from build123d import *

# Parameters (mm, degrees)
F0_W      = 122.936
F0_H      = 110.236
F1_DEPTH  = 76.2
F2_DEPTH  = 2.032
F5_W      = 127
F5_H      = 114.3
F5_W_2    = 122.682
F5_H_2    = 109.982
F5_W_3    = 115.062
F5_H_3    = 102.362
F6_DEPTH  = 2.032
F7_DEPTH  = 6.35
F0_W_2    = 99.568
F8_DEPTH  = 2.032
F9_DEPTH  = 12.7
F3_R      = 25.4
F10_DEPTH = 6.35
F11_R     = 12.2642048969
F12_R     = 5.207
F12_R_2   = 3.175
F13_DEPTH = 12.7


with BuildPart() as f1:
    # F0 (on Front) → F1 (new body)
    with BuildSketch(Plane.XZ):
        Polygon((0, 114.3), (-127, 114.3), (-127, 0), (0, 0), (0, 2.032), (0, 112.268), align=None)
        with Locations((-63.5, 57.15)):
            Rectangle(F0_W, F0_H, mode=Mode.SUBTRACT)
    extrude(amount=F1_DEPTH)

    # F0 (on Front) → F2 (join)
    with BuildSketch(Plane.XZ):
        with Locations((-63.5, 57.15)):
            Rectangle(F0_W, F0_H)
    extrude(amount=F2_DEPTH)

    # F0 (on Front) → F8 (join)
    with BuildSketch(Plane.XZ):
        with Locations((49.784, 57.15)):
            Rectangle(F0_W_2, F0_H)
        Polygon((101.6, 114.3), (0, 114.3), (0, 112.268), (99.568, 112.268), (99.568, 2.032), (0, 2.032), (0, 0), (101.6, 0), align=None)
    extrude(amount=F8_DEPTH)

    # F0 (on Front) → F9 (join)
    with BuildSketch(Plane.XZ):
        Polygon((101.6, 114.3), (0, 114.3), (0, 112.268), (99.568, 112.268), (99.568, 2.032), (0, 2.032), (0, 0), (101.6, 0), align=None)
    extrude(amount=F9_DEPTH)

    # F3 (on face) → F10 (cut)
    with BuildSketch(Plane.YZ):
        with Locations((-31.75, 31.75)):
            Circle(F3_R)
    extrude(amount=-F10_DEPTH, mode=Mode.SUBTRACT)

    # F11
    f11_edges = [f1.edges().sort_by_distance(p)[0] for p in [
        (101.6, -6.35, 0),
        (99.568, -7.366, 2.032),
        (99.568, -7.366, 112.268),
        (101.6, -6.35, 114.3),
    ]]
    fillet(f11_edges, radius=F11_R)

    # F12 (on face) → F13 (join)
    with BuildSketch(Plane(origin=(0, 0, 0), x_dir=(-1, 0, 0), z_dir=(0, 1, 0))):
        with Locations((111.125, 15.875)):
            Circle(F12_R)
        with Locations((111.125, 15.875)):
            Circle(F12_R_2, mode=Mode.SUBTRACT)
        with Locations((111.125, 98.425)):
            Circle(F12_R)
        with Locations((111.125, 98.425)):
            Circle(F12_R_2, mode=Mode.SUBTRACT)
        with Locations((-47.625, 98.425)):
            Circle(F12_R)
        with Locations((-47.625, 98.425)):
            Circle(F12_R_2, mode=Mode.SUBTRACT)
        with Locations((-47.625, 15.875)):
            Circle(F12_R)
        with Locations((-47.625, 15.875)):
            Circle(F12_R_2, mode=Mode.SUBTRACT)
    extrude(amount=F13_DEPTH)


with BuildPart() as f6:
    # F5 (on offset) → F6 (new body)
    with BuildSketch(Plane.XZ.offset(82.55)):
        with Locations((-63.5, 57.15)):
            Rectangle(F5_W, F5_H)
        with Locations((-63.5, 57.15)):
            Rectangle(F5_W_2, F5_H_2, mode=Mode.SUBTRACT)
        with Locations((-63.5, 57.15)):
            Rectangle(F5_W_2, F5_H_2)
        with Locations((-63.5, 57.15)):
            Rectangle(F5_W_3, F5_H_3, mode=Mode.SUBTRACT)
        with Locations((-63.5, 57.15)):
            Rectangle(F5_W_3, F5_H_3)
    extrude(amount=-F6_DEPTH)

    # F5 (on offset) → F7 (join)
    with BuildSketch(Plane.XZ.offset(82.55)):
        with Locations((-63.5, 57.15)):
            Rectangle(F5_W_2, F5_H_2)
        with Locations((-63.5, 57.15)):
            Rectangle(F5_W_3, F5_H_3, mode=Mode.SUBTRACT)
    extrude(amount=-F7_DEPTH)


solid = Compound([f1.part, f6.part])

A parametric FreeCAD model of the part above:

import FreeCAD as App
import Part
import Sketcher
from FreeCAD import Vector
Q = App.Units.Quantity


def edges_at(feature, points):
    """Names of the edges that pass closest to the given points."""
    edges = feature.Shape.Edges
    near = lambda p: min(range(len(edges)), key=lambda i: edges[i].distToShape(Part.Vertex(*p))[0])
    return sorted({f"Edge{near(p) + 1}" for p in points})


def add_polygon(sketch, points):
    """Adds a closed chain of lines whose ends are joined by coincident constraints."""
    first, n = sketch.GeometryCount, len(points)
    for a, b in zip(points, points[1:] + points[:1]):
        sketch.addGeometry(Part.LineSegment(App.Vector(*a, 0), App.Vector(*b, 0)), False)
    for i in range(n):
        sketch.addConstraint(Sketcher.Constraint("Coincident", first + i, 2, first + (i + 1) % n, 1))

doc = App.newDocument("Part")
body = doc.addObject("PartDesign::Body", "Body")

sketch1 = body.newObject("Sketcher::SketchObject", "Sketch")
sketch1.AttachmentSupport = (doc.getObject("XZ_Plane"), [""])
sketch1.MapMode = "FlatFace"
add_polygon(sketch1, [(0, 114.3), (-127, 114.3), (-127, 0), (0, 0)])
add_polygon(sketch1, [(-2.032, 2.032), (-124.968, 2.032), (-124.968, 112.268), (-2.032, 112.268)])
sketch1.addConstraint(Sketcher.Constraint("Horizontal", 0))
sketch1.addConstraint(Sketcher.Constraint("Vertical", 1))
sketch1.addConstraint(Sketcher.Constraint("Horizontal", 2))
sketch1.addConstraint(Sketcher.Constraint("Vertical", 3))
sketch1.addConstraint(Sketcher.Constraint("Horizontal", 4))
sketch1.addConstraint(Sketcher.Constraint("Vertical", 5))
sketch1.addConstraint(Sketcher.Constraint("Horizontal", 6))
sketch1.addConstraint(Sketcher.Constraint("Vertical", 7))
sketch1.addConstraint(Sketcher.Constraint("Coincident", 2, 2, -1, 1))
sketch1.addConstraint(Sketcher.Constraint("DistanceX", 0, 2, 0, 1, Q("5 in")))
sketch1.addConstraint(Sketcher.Constraint("DistanceY", 1, 2, 1, 1, Q("4.5 in")))
sketch1.addConstraint(Sketcher.Constraint("DistanceX", 4, 2, 4, 1, Q("4.84 in")))
sketch1.addConstraint(Sketcher.Constraint("DistanceY", 5, 1, 5, 2, Q("4.34 in")))
sketch1.addConstraint(Sketcher.Constraint("DistanceX", 4, 2, -1, 1, Q("4.92 in")))
sketch1.addConstraint(Sketcher.Constraint("DistanceY", -1, 1, 4, 2, Q("0.08 in")))
pad1 = body.newObject("PartDesign::Pad", "Pad")
pad1.Profile = sketch1
pad1.Length = Q("3 in")

sketch2 = body.newObject("Sketcher::SketchObject", "Sketch001")
sketch2.AttachmentSupport = (doc.getObject("XZ_Plane"), [""])
sketch2.MapMode = "FlatFace"
add_polygon(sketch2, [(-124.968, 112.268), (-124.968, 2.032), (-2.032, 2.032), (-2.032, 112.268)])
sketch2.addConstraint(Sketcher.Constraint("Vertical", 0))
sketch2.addConstraint(Sketcher.Constraint("Horizontal", 1))
sketch2.addConstraint(Sketcher.Constraint("Vertical", 2))
sketch2.addConstraint(Sketcher.Constraint("Horizontal", 3))
sketch2.addConstraint(Sketcher.Constraint("DistanceX", 1, 1, 1, 2, Q("4.84 in")))
sketch2.addConstraint(Sketcher.Constraint("DistanceY", 0, 2, 0, 1, Q("4.34 in")))
sketch2.addConstraint(Sketcher.Constraint("DistanceX", 0, 2, -1, 1, Q("4.92 in")))
sketch2.addConstraint(Sketcher.Constraint("DistanceY", -1, 1, 0, 2, Q("0.08 in")))
pad2 = body.newObject("PartDesign::Pad", "Pad001")
pad2.Profile = sketch2
pad2.Length = Q("0.08 in")

sketch3 = body.newObject("Sketcher::SketchObject", "Sketch002")
sketch3.AttachmentSupport = (doc.getObject("XZ_Plane"), [""])
sketch3.MapMode = "FlatFace"
add_polygon(sketch3, [(0, 0), (101.6, 0), (101.6, 114.3), (0, 114.3)])
sketch3.addConstraint(Sketcher.Constraint("Horizontal", 0))
sketch3.addConstraint(Sketcher.Constraint("Vertical", 1))
sketch3.addConstraint(Sketcher.Constraint("Horizontal", 2))
sketch3.addConstraint(Sketcher.Constraint("Vertical", 3))
sketch3.addConstraint(Sketcher.Constraint("Coincident", 3, 2, -1, 1))
sketch3.addConstraint(Sketcher.Constraint("DistanceX", 0, 1, 0, 2, Q("4 in")))
sketch3.addConstraint(Sketcher.Constraint("DistanceY", 1, 1, 1, 2, Q("4.5 in")))
pad3 = body.newObject("PartDesign::Pad", "Pad002")
pad3.Profile = sketch3
pad3.Length = Q("0.08 in")

sketch4 = body.newObject("Sketcher::SketchObject", "Sketch003")
sketch4.AttachmentSupport = (doc.getObject("XZ_Plane"), [""])
sketch4.MapMode = "FlatFace"
add_polygon(sketch4, [(101.6, 114.3), (0, 114.3), (0, 112.268), (99.568, 112.268), (99.568, 2.032), (0, 2.032), (0, 0), (101.6, 0)])
sketch4.addConstraint(Sketcher.Constraint("Horizontal", 0))
sketch4.addConstraint(Sketcher.Constraint("Vertical", 1))
sketch4.addConstraint(Sketcher.Constraint("Horizontal", 2))
sketch4.addConstraint(Sketcher.Constraint("Vertical", 3))
sketch4.addConstraint(Sketcher.Constraint("Horizontal", 4))
sketch4.addConstraint(Sketcher.Constraint("Vertical", 5))
sketch4.addConstraint(Sketcher.Constraint("Horizontal", 6))
sketch4.addConstraint(Sketcher.Constraint("Vertical", 7))
sketch4.addConstraint(Sketcher.Constraint("Coincident", 5, 2, -1, 1))
sketch4.addConstraint(Sketcher.Constraint("PointOnObject", 0, 2, -2))
sketch4.addConstraint(Sketcher.Constraint("Equal", 1, 5))
sketch4.addConstraint(Sketcher.Constraint("DistanceX", 0, 2, 0, 1, Q("4 in")))
sketch4.addConstraint(Sketcher.Constraint("DistanceY", 7, 1, 7, 2, Q("4.5 in")))
sketch4.addConstraint(Sketcher.Constraint("DistanceX", 2, 1, 2, 2, Q("3.92 in")))
sketch4.addConstraint(Sketcher.Constraint("DistanceY", 1, 2, 1, 1, Q("0.08 in")))
pad4 = body.newObject("PartDesign::Pad", "Pad003")
pad4.Profile = sketch4
pad4.Length = Q("0.5 in")

sketch5 = body.newObject("Sketcher::SketchObject", "Sketch004")
sketch5.AttachmentSupport = (doc.getObject("YZ_Plane"), [""])
sketch5.MapMode = "FlatFace"
sketch5.addGeometry(Part.Circle(Vector(-31.75, 31.75, 0), Vector(0, 0, 1), 25.4), False)
sketch5.addConstraint(Sketcher.Constraint("Diameter", 0, Q("2 in")))
sketch5.addConstraint(Sketcher.Constraint("DistanceX", 0, 3, -1, 1, Q("1.25 in")))
sketch5.addConstraint(Sketcher.Constraint("DistanceY", -1, 1, 0, 3, Q("1.25 in")))
pocket1 = body.newObject("PartDesign::Pocket", "Pocket")
pocket1.Profile = sketch5
pocket1.Length = Q("0.25 in")
doc.recompute()

fillet = body.newObject("PartDesign::Fillet", "Fillet")
fillet.Base = (pocket1, edges_at(pocket1, [
    (101.6, -6.35, 0),
    (99.568, -7.366, 2.032),
    (99.568, -7.366, 112.268),
    (101.6, -6.35, 114.3),
]))
fillet.Radius = 12.264205

sketch6 = body.newObject("Sketcher::SketchObject", "Sketch005")
sketch6.AttachmentSupport = (doc.getObject("XZ_Plane"), [""])
sketch6.MapMode = "FlatFace"
sketch6.addGeometry(Part.Circle(Vector(-111.125, 15.875, 0), Vector(0, 0, 1), 5.207), False)
sketch6.addGeometry(Part.Circle(Vector(-111.125, 15.875, 0), Vector(0, 0, 1), 3.175), False)
sketch6.addGeometry(Part.Circle(Vector(-111.125, 98.425, 0), Vector(0, 0, 1), 5.207), False)
sketch6.addGeometry(Part.Circle(Vector(-111.125, 98.425, 0), Vector(0, 0, 1), 3.175), False)
sketch6.addGeometry(Part.Circle(Vector(47.625, 98.425, 0), Vector(0, 0, 1), 5.207), False)
sketch6.addGeometry(Part.Circle(Vector(47.625, 98.425, 0), Vector(0, 0, 1), 3.175), False)
sketch6.addGeometry(Part.Circle(Vector(47.625, 15.875, 0), Vector(0, 0, 1), 5.207), False)
sketch6.addGeometry(Part.Circle(Vector(47.625, 15.875, 0), Vector(0, 0, 1), 3.175), False)
sketch6.addConstraint(Sketcher.Constraint("Coincident", 1, 3, 0, 3))
sketch6.addConstraint(Sketcher.Constraint("Coincident", 3, 3, 2, 3))
sketch6.addConstraint(Sketcher.Constraint("Coincident", 5, 3, 4, 3))
sketch6.addConstraint(Sketcher.Constraint("Coincident", 7, 3, 6, 3))
sketch6.addConstraint(Sketcher.Constraint("Equal", 0, 2))
sketch6.addConstraint(Sketcher.Constraint("Equal", 1, 3))
sketch6.addConstraint(Sketcher.Constraint("Equal", 2, 4))
sketch6.addConstraint(Sketcher.Constraint("Equal", 3, 5))
sketch6.addConstraint(Sketcher.Constraint("Equal", 4, 6))
sketch6.addConstraint(Sketcher.Constraint("Equal", 5, 7))
sketch6.addConstraint(Sketcher.Constraint("Horizontal", 3, 3, 4, 3))
sketch6.addConstraint(Sketcher.Constraint("Horizontal", 1, 3, 6, 3))
sketch6.addConstraint(Sketcher.Constraint("Vertical", 1, 3, 2, 3))
sketch6.addConstraint(Sketcher.Constraint("Vertical", 5, 3, 6, 3))
sketch6.addConstraint(Sketcher.Constraint("Diameter", 0, Q("0.41 in")))
sketch6.addConstraint(Sketcher.Constraint("Diameter", 1, Q("0.25 in")))
sketch6.addConstraint(Sketcher.Constraint("DistanceY", 0, 3, 2, 3, Q("3.25 in")))
sketch6.addConstraint(Sketcher.Constraint("DistanceX", 2, 3, 4, 3, Q("6.25 in")))
sketch6.addConstraint(Sketcher.Constraint("DistanceX", 0, 3, -1, 1, Q("4.375 in")))
sketch6.addConstraint(Sketcher.Constraint("DistanceY", -1, 1, 0, 3, Q("0.625 in")))
pad5 = body.newObject("PartDesign::Pad", "Pad004")
pad5.Profile = sketch6
pad5.Length = Q("0.5 in")
pad5.Reversed = True
body2 = doc.addObject("PartDesign::Body", "Body001")

sketch7 = body2.newObject("Sketcher::SketchObject", "Sketch006")
sketch7.AttachmentSupport = (doc.getObject("XZ_Plane001"), [""])
sketch7.MapMode = "FlatFace"
sketch7.AttachmentOffset = App.Placement(Vector(0, 0, 3.25 * 25.4), App.Rotation())
add_polygon(sketch7, [(-127, 114.3), (-127, 0), (0, 0), (0, 114.3)])
sketch7.addConstraint(Sketcher.Constraint("Vertical", 0))
sketch7.addConstraint(Sketcher.Constraint("Horizontal", 1))
sketch7.addConstraint(Sketcher.Constraint("Vertical", 2))
sketch7.addConstraint(Sketcher.Constraint("Horizontal", 3))
sketch7.addConstraint(Sketcher.Constraint("Coincident", 1, 2, -1, 1))
sketch7.addConstraint(Sketcher.Constraint("DistanceX", 1, 1, 1, 2, Q("5 in")))
sketch7.addConstraint(Sketcher.Constraint("DistanceY", 0, 2, 0, 1, Q("4.5 in")))
pad6 = body2.newObject("PartDesign::Pad", "Pad005")
pad6.Profile = sketch7
pad6.Length = Q("0.08 in")
pad6.Reversed = True

sketch8 = body2.newObject("Sketcher::SketchObject", "Sketch007")
sketch8.AttachmentSupport = (doc.getObject("XZ_Plane001"), [""])
sketch8.MapMode = "FlatFace"
sketch8.AttachmentOffset = App.Placement(Vector(0, 0, 3.25 * 25.4), App.Rotation())
add_polygon(sketch8, [(-124.841, 112.141), (-124.841, 2.159), (-2.159, 2.159), (-2.159, 112.141)])
add_polygon(sketch8, [(-5.969, 5.969), (-121.031, 5.969), (-121.031, 108.331), (-5.969, 108.331)])
sketch8.addConstraint(Sketcher.Constraint("Vertical", 0))
sketch8.addConstraint(Sketcher.Constraint("Horizontal", 1))
sketch8.addConstraint(Sketcher.Constraint("Vertical", 2))
sketch8.addConstraint(Sketcher.Constraint("Horizontal", 3))
sketch8.addConstraint(Sketcher.Constraint("Horizontal", 4))
sketch8.addConstraint(Sketcher.Constraint("Vertical", 5))
sketch8.addConstraint(Sketcher.Constraint("Horizontal", 6))
sketch8.addConstraint(Sketcher.Constraint("Vertical", 7))
sketch8.addConstraint(Sketcher.Constraint("DistanceX", 1, 1, 1, 2, Q("4.83 in")))
sketch8.addConstraint(Sketcher.Constraint("DistanceX", 4, 2, 4, 1, Q("4.53 in")))
sketch8.addConstraint(Sketcher.Constraint("DistanceY", 0, 2, 0, 1, Q("4.33 in")))
sketch8.addConstraint(Sketcher.Constraint("DistanceY", 5, 1, 5, 2, Q("4.03 in")))
sketch8.addConstraint(Sketcher.Constraint("DistanceX", 0, 2, 4, 2, Q("0.15 in")))
sketch8.addConstraint(Sketcher.Constraint("DistanceY", 0, 2, 4, 2, Q("0.15 in")))
sketch8.addConstraint(Sketcher.Constraint("DistanceX", 0, 2, -1, 1, Q("4.915 in")))
sketch8.addConstraint(Sketcher.Constraint("DistanceY", -1, 1, 0, 2, Q("0.085 in")))
pad7 = body2.newObject("PartDesign::Pad", "Pad006")
pad7.Profile = sketch8
pad7.Length = Q("0.25 in")
pad7.Reversed = True

doc.recompute()
